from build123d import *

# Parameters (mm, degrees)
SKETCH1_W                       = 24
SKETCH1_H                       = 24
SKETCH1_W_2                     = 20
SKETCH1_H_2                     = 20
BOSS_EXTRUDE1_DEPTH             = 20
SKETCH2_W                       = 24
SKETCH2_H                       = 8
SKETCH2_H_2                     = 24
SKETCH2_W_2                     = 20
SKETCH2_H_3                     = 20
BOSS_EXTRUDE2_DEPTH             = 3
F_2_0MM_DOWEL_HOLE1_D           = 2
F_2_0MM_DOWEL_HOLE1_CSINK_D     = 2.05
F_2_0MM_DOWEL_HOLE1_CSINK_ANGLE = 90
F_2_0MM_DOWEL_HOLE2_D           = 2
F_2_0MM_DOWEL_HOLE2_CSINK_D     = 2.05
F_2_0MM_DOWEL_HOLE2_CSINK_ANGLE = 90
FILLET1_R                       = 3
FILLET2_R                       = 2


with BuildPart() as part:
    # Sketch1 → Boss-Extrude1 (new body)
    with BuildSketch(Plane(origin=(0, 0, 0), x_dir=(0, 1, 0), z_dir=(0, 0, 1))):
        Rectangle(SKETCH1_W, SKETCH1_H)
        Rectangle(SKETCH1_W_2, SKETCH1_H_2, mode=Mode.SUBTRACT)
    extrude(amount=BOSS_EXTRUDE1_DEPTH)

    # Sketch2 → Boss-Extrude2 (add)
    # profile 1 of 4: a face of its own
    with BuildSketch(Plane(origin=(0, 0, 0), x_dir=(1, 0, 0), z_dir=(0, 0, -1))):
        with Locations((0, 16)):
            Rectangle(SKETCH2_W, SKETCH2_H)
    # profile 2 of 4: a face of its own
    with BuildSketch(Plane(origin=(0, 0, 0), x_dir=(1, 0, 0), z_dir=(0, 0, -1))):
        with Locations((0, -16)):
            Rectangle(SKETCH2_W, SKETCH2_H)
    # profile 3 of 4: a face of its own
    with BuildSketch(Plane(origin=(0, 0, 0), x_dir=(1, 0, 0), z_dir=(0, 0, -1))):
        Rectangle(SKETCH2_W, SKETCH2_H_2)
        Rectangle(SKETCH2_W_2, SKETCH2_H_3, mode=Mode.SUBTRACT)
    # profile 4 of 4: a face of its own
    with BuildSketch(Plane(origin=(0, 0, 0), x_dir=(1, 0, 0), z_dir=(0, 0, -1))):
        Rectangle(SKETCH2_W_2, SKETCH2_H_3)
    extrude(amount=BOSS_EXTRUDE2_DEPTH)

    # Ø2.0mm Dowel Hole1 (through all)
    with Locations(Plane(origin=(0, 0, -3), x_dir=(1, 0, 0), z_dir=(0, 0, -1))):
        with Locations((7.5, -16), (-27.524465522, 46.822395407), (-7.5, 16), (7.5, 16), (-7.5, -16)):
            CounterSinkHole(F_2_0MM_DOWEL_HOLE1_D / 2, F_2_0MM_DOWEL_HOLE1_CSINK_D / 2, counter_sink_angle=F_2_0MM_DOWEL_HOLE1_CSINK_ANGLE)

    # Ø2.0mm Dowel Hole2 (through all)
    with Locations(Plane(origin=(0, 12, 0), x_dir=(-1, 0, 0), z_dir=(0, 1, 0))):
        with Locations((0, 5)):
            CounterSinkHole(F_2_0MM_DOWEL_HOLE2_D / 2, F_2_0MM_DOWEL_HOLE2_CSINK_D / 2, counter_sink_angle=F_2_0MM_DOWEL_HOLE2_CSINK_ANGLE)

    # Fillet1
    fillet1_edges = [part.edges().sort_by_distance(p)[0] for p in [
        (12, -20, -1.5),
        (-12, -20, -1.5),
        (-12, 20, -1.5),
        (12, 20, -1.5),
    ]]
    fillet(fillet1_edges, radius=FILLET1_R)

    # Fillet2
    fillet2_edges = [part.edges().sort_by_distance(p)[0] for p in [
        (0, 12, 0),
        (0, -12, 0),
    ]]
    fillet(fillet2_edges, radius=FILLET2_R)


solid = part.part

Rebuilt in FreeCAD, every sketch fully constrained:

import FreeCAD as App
import Part
import Sketcher

V = App.Vector


def edges_at(feature, points):
    """Names of the edges that pass closest to the given points."""
    edges = feature.Shape.Edges
    near = lambda p: min(range(len(edges)), key=lambda i: edges[i].distToShape(Part.Vertex(*p))[0])
    return sorted({f"Edge{near(p) + 1}" for p in points})


def add_polygon(sketch, points):
    """Adds a closed chain of lines whose ends are joined by coincident constraints."""
    first, n = sketch.GeometryCount, len(points)
    for a, b in zip(points, points[1:] + points[:1]):
        sketch.addGeometry(Part.LineSegment(App.Vector(*a, 0), App.Vector(*b, 0)), False)
    for i in range(n):
        sketch.addConstraint(Sketcher.Constraint("Coincident", first + i, 2, first + (i + 1) % n, 1))

doc = App.newDocument("Part")
params = doc.addObject("Spreadsheet::Sheet", "Params")
for row, (alias, value) in enumerate([
    ("sketch1_width", "24 mm"),
    ("sketch1_width2", "20 mm"),
    ("pad1_length", "20 mm"),
    ("sketch2_width", "24 mm"),
    ("sketch2_height", "40 mm"),
    ("pad2_length", "3 mm"),
    ("sketch3_diameter", "2 mm"),
    ("hole_diameter", "2 mm"),
    ("hole_csink_diameter", "2.05 mm"),
    ("sketch4_diameter", "2 mm"),
    ("hole2_diameter", "2 mm"),
    ("hole2_csink_diameter", "2.05 mm"),
    ("fillet_radius", "3 mm"),
    ("fillet2_radius", "2 mm"),
], start=1):
    params.set(f"A{row}", alias)
    params.set(f"B{row}", "=" + value)
    params.setAlias(f"B{row}", alias)

body = doc.addObject("PartDesign::Body", "Body")

sketch1 = body.newObject("Sketcher::SketchObject", "Sketch")
sketch1.AttachmentSupport = (doc.getObject("XY_Plane"), [""])
sketch1.MapMode = "FlatFace"
add_polygon(sketch1, [(-12, -12), (12, -12), (12, 12), (-12, 12)])
add_polygon(sketch1, [(10, 10), (10, -10), (-10, -10), (-10, 10)])
sketch1.addConstraint([
    Sketcher.Constraint("Horizontal", 0),
    Sketcher.Constraint("Vertical", 1),
    Sketcher.Constraint("Horizontal", 2),
    Sketcher.Constraint("Vertical", 3),
    Sketcher.Constraint("Vertical", 4),
    Sketcher.Constraint("Horizontal", 5),
    Sketcher.Constraint("Vertical", 6),
    Sketcher.Constraint("Horizontal", 7),
    Sketcher.Constraint("Symmetric", 0, 2, 2, 2, -1, 1),
    Sketcher.Constraint("Symmetric", 4, 2, 6, 2, -1, 1),
    Sketcher.Constraint("Equal", 2, 1),
    Sketcher.Constraint("Equal", 7, 4),
    Sketcher.Constraint("DistanceX", 0, 1, 0, 2, 24.0),
    Sketcher.Constraint("DistanceX", 5, 2, 5, 1, 20.0),
])
sketch1.setExpression("Constraints[20]", "Params.sketch1_width")
sketch1.setExpression("Constraints[21]", "Params.sketch1_width2")
pad1 = body.newObject("PartDesign::Pad", "Pad")
pad1.Profile = sketch1
pad1.setExpression("Length", "Params.pad1_length")

sketch2 = body.newObject("Sketcher::SketchObject", "Sketch001")
sketch2.AttachmentSupport = (doc.getObject("XY_Plane"), [""])
sketch2.MapMode = "FlatFace"
add_polygon(sketch2, [(-12, -20), (-12, 20), (12, 20), (12, -20)])
sketch2.addConstraint([
    Sketcher.Constraint("Vertical", 0),
    Sketcher.Constraint("Horizontal", 1),
    Sketcher.Constraint("Vertical", 2),
    Sketcher.Constraint("Horizontal", 3),
    Sketcher.Constraint("Symmetric", 0, 2, 2, 2, -1, 1),
    Sketcher.Constraint("DistanceX", 1, 1, 1, 2, 24.0),
    Sketcher.Constraint("DistanceY", 0, 1, 0, 2, 40.0),
])
sketch2.setExpression("Constraints[9]", "Params.sketch2_width")
sketch2.setExpression("Constraints[10]", "Params.sketch2_height")
pad2 = body.newObject("PartDesign::Pad", "Pad001")
pad2.Profile = sketch2
pad2.setExpression("Length", "Params.pad2_length")
pad2.Reversed = True

sketch3 = body.newObject("Sketcher::SketchObject", "Sketch002")
sketch3.AttachmentSupport = (doc.getObject("XY_Plane"), [""])
sketch3.MapMode = "FlatFace"
sketch3.AttachmentOffset = App.Placement(V(0, 0, -3), App.Rotation())
sketch3.addGeometry([
    Part.Circle(V(7.5, 16, 0), V(0, 0, 1), 1),
    Part.Circle(V(-27.5, -46.8, 0), V(0, 0, 1), 1),
    Part.Circle(V(-7.5, -16, 0), V(0, 0, 1), 1),
    Part.Circle(V(7.5, -16, 0), V(0, 0, 1), 1),
    Part.Circle(V(-7.5, 16, 0), V(0, 0, 1), 1),
], False)
sketch3.addConstraint([
    Sketcher.Constraint("Equal", 0, 1),
    Sketcher.Constraint("Equal", 1, 2),
    Sketcher.Constraint("Equal", 2, 3),
    Sketcher.Constraint("Equal", 3, 4),
    Sketcher.Constraint("Symmetric", 0, 3, 2, 3, -1, 1),
    Sketcher.Constraint("Symmetric", 3, 3, 4, 3, -1, 1),
    Sketcher.Constraint("Symmetric", 2, 3, 3, 3, -2),
    Sketcher.Constraint("Diameter", 0, 2.0),
    Sketcher.Constraint("DistanceY", -1, 1, 0, 3, 16.0),
    Sketcher.Constraint("DistanceX", 2, 3, 0, 3, 15.0),
    Sketcher.Constraint("DistanceX", 1, 3, -1, 1, 27.524466),
    Sketcher.Constraint("DistanceY", 1, 3, -1, 1, 46.822395),
])
sketch3.setExpression("Constraints[7]", "Params.sketch3_diameter")
doc.recompute()
hole = body.newObject("PartDesign::Hole", "Hole")
hole.Profile = sketch3
hole.ThreadType = "None"
hole.setExpression("Diameter", "Params.hole_diameter")
hole.DepthType = "ThroughAll"
hole.HoleCutType = "Countersink"
hole.setExpression("HoleCutDiameter", "Params.hole_csink_diameter")
hole.HoleCutCountersinkAngle = 90
hole.Reversed = True

sketch4 = body.newObject("Sketcher::SketchObject", "Sketch003")
sketch4.AttachmentSupport = (doc.getObject("XZ_Plane"), [""])
sketch4.MapMode = "FlatFace"
sketch4.AttachmentOffset = App.Placement(V(0, 0, -12), App.Rotation())
sketch4.addGeometry(Part.Circle(V(0, 5, 0), V(0, 0, 1), 1), False)
sketch4.addConstraint([
    Sketcher.Constraint("PointOnObject", 0, 3, -2),
    Sketcher.Constraint("Diameter", 0, 2.0),
    Sketcher.Constraint("DistanceY", -1, 1, 0, 3, 5.0),
])
sketch4.setExpression("Constraints[1]", "Params.sketch4_diameter")
doc.recompute()
hole2 = body.newObject("PartDesign::Hole", "Hole001")
hole2.Profile = sketch4
hole2.ThreadType = "None"
hole2.setExpression("Diameter", "Params.hole2_diameter")
hole2.DepthType = "ThroughAll"
hole2.HoleCutType = "Countersink"
hole2.setExpression("HoleCutDiameter", "Params.hole2_csink_diameter")
hole2.HoleCutCountersinkAngle = 90
hole2.Reversed = True
doc.recompute()

fillet = body.newObject("PartDesign::Fillet", "Fillet")
fillet.Base = (hole2, edges_at(hole2, [
    (12, -20, -1.5),
    (-12, -20, -1.5),
    (-12, 20, -1.5),
    (12, 20, -1.5),
]))
fillet.setExpression("Radius", "Params.fillet_radius")
doc.recompute()

fillet2 = body.newObject("PartDesign::Fillet", "Fillet001")
fillet2.Base = (fillet, edges_at(fillet, [(0, 12, 0), (0, -12, 0)]))
fillet2.setExpression("Radius", "Params.fillet2_radius")

doc.recompute()
